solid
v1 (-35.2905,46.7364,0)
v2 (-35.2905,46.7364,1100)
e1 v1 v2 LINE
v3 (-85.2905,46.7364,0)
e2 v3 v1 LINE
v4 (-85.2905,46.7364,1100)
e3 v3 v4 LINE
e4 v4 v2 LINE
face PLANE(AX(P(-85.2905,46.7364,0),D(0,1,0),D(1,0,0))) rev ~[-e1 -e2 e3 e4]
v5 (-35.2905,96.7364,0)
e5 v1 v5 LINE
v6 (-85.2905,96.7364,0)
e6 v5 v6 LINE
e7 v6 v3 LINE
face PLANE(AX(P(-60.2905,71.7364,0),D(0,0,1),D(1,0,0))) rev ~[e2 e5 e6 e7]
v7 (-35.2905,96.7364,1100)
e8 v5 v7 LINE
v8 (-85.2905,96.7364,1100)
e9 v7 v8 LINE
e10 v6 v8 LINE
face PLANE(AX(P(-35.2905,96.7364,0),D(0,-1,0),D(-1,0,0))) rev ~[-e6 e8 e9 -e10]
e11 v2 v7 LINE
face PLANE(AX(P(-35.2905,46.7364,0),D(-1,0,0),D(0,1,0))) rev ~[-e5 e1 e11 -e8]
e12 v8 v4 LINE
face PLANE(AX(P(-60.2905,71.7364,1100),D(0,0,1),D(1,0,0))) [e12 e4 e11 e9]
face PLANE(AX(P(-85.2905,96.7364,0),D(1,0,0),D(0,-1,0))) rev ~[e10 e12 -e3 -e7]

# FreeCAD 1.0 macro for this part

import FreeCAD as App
import Part
import Sketcher

V = App.Vector
Q = App.Units.Quantity

doc = App.newDocument("Part")
params = doc.addObject("Spreadsheet::Sheet", "Params")
for row, (alias, value) in enumerate([
    ("sketch1_width", "50 mm"),
    ("pad1_length", "1100 mm"),
], start=1):
    params.set(f"A{row}", alias)
    params.set(f"B{row}", "=" + value)
    params.setAlias(f"B{row}", alias)

body = doc.addObject("PartDesign::Body", "Body")

sketch1 = body.newObject("Sketcher::SketchObject", "Sketch")
sketch1.AttachmentSupport = (doc.getObject("XY_Plane"), [""])
sketch1.MapMode = "FlatFace"
sketch1.addGeometry(Part.LineSegment(V(-85.2905, 96.7364, 0), V(-85.2905, 46.7364, 0)), False)
sketch1.addGeometry(Part.LineSegment(V(-85.2905, 46.7364, 0), V(-35.2905, 46.7364, 0)), False)
sketch1.addGeometry(Part.LineSegment(V(-35.2905, 46.7364, 0), V(-35.2905, 96.7364, 0)), False)
sketch1.addGeometry(Part.LineSegment(V(-35.2905, 96.7364, 0), V(-85.2905, 96.7364, 0)), False)
sketch1.addConstraint(Sketcher.Constraint("Coincident", 0, 2, 1, 1))
sketch1.addConstraint(Sketcher.Constraint("Coincident", 1, 2, 2, 1))
sketch1.addConstraint(Sketcher.Constraint("Coincident", 2, 2, 3, 1))
sketch1.addConstraint(Sketcher.Constraint("Coincident", 3, 2, 0, 1))
sketch1.addConstraint(Sketcher.Constraint("Vertical", 0))
sketch1.addConstraint(Sketcher.Constraint("Horizontal", 1))
sketch1.addConstraint(Sketcher.Constraint("Vertical", 2))
sketch1.addConstraint(Sketcher.Constraint("Horizontal", 3))
sketch1.addConstraint(Sketcher.Constraint("Equal", 3, 0))
sketch1.addConstraint(Sketcher.Constraint("DistanceX", 1, 1, 1, 2, Q("50 mm")))
sketch1.addConstraint(Sketcher.Constraint("DistanceX", 0, 2, -1, 1, Q("85.2905 mm")))
sketch1.addConstraint(Sketcher.Constraint("DistanceY", -1, 1, 0, 2, Q("46.7364 mm")))
sketch1.setExpression("Constraints[9]", "Params.sketch1_width")
pad1 = body.newObject("PartDesign::Pad", "Pad")
pad1.Profile = sketch1
pad1.setExpression("Length", "Params.pad1_length")

doc.recompute()
